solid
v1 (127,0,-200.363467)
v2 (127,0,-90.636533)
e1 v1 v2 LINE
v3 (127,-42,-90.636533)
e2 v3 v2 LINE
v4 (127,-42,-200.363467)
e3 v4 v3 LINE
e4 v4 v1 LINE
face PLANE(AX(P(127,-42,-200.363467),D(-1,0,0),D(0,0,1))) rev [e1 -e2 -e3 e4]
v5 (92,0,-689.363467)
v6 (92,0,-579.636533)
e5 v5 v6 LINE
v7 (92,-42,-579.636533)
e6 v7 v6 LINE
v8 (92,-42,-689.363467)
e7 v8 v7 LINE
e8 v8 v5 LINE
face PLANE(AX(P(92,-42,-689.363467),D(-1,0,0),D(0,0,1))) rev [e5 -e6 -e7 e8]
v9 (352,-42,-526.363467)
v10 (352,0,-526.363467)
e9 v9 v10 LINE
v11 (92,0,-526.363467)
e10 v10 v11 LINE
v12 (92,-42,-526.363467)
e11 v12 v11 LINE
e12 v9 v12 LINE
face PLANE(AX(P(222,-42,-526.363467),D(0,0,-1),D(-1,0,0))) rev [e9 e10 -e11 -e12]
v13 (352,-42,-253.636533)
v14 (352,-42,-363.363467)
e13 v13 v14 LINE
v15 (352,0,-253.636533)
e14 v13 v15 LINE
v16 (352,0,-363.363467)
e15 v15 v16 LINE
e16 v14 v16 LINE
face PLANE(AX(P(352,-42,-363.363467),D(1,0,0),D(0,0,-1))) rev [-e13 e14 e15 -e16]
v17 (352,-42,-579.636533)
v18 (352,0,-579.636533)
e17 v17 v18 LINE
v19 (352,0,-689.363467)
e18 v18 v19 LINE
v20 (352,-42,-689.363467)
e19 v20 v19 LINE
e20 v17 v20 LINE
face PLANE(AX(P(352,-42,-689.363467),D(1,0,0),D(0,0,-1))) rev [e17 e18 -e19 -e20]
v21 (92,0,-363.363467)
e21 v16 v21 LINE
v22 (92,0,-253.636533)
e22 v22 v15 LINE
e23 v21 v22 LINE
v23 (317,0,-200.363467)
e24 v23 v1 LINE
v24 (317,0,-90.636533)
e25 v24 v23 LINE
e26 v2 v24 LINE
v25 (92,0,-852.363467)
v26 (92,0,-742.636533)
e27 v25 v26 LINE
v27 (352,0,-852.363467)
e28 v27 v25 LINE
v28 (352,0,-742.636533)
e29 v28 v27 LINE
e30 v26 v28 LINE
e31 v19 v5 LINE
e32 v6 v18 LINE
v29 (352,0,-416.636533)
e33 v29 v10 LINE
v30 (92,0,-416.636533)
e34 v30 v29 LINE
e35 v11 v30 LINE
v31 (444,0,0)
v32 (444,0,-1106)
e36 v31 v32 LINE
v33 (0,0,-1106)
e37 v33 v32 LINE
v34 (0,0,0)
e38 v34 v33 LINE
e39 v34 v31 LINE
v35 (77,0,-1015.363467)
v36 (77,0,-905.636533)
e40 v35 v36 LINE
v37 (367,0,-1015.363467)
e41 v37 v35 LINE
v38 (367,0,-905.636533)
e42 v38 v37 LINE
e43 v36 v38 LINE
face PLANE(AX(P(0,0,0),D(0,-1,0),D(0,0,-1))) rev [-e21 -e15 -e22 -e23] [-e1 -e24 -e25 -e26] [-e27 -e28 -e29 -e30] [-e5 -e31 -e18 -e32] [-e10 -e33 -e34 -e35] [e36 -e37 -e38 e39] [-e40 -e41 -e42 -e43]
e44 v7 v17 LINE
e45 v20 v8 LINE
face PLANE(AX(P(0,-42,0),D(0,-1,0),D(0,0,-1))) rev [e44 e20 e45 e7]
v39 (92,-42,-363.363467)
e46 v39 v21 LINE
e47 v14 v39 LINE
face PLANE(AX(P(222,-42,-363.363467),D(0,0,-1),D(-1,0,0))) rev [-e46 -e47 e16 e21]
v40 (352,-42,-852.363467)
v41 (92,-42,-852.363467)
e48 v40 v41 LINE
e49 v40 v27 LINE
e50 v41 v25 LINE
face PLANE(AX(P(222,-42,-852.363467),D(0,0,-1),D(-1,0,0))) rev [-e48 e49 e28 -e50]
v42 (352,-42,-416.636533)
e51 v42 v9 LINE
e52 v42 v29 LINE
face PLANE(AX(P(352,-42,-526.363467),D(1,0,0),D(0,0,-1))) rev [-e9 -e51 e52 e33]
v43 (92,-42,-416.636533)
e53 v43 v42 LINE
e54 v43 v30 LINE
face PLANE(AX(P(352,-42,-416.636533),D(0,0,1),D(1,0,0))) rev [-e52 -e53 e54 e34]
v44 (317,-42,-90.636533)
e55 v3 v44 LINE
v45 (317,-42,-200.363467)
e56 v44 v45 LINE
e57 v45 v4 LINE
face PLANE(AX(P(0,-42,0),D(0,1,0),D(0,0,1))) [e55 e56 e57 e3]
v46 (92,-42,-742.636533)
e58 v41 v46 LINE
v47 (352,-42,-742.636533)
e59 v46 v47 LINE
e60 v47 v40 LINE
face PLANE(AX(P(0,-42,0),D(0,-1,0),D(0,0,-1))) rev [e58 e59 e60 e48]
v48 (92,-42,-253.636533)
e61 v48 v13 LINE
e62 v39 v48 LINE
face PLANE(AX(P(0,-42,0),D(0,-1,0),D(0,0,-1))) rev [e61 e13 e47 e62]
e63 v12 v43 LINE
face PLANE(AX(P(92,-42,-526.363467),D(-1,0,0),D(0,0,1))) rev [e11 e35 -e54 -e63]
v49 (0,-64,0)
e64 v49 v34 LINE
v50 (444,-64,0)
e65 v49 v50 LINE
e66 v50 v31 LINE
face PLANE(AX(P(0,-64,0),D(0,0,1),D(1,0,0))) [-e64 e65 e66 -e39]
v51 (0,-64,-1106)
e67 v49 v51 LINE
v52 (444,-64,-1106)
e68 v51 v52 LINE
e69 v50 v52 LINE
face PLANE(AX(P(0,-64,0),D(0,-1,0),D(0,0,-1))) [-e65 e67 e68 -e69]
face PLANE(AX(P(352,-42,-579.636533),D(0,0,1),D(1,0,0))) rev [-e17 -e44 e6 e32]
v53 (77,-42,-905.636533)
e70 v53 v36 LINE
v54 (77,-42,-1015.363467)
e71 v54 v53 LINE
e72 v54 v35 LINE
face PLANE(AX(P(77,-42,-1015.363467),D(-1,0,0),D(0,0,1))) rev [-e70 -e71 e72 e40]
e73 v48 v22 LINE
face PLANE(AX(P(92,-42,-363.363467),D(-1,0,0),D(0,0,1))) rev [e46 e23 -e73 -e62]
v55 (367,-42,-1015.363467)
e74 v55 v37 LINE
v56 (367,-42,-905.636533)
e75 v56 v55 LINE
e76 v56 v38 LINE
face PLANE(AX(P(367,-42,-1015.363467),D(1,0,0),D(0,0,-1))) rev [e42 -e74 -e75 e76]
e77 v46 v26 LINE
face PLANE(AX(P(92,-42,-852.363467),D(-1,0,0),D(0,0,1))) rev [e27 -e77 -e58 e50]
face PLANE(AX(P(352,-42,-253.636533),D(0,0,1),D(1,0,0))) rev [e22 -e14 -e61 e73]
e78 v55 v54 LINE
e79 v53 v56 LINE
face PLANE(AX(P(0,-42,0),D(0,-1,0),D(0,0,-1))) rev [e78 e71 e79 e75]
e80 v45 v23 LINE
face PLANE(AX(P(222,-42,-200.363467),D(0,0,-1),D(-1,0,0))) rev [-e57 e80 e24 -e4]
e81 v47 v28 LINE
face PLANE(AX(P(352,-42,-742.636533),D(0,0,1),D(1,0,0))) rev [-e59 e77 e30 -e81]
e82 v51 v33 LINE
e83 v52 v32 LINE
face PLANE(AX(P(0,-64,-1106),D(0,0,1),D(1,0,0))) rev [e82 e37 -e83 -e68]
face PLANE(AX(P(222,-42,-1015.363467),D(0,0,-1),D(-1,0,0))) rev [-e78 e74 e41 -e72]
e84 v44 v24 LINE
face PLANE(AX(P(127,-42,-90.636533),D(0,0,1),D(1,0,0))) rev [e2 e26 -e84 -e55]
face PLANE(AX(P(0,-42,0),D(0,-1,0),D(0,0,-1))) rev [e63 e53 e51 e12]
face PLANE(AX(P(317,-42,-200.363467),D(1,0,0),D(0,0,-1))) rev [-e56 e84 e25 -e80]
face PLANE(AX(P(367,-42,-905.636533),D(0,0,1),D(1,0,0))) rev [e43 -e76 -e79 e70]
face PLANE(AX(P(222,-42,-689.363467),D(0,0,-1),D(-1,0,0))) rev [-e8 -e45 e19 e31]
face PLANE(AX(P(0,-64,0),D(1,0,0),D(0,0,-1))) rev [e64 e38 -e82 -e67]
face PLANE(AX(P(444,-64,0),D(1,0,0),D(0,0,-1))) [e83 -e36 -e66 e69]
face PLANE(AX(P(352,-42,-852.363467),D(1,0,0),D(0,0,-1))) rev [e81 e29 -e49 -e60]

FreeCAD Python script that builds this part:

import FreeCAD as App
import Part
import Sketcher

V = App.Vector
Q = App.Units.Quantity


def add_polygon(sketch, points):
    """Adds a closed chain of lines whose ends are joined by coincident constraints."""
    first, n = sketch.GeometryCount, len(points)
    for a, b in zip(points, points[1:] + points[:1]):
        sketch.addGeometry(Part.LineSegment(App.Vector(*a, 0), App.Vector(*b, 0)), False)
    for i in range(n):
        sketch.addConstraint(Sketcher.Constraint("Coincident", first + i, 2, first + (i + 1) % n, 1))

doc = App.newDocument("Part")
body = doc.addObject("PartDesign::Body", "Body")

# Sketch on XZ plane
sketch1 = body.newObject("Sketcher::SketchObject", "Sketch")
sketch1.AttachmentSupport = (doc.getObject("XZ_Plane"), [""])
sketch1.MapMode = "FlatFace"
add_polygon(sketch1, [(0, -1106), (0, 0), (444, 0), (444, -1106)])  # lines 0-3
sketch1.addConstraint([
    Sketcher.Constraint("Vertical", 0),
    Sketcher.Constraint("Horizontal", 1),
    Sketcher.Constraint("Vertical", 2),
    Sketcher.Constraint("Horizontal", 3),
    Sketcher.Constraint("Coincident", 0, 2, -1, 1),
    Sketcher.Constraint("DistanceX", 1, 1, 1, 2, Q("444 mm")),
    Sketcher.Constraint("DistanceY", 0, 1, 0, 2, Q("1106 mm")),
])
pad1 = body.newObject("PartDesign::Pad", "Pad")
pad1.Profile = sketch1
pad1.Length = 64

# Sketch on XZ plane
sketch2 = body.newObject("Sketcher::SketchObject", "Sketch001")
sketch2.AttachmentSupport = (doc.getObject("XZ_Plane"), [""])
sketch2.MapMode = "FlatFace"
add_polygon(sketch2, [(77, -1015.363467), (77, -905.636533), (367, -905.636533), (367, -1015.363467)])  # lines 0-3
add_polygon(sketch2, [(92, -852.363467), (92, -742.636533), (352, -742.636533), (352, -852.363467)])  # lines 4-7
add_polygon(sketch2, [(92, -689.363467), (92, -579.636533), (352, -579.636533), (352, -689.363467)])  # lines 8-11
add_polygon(sketch2, [(92, -526.363467), (92, -416.636533), (352, -416.636533), (352, -526.363467)])  # lines 12-15
add_polygon(sketch2, [(92, -363.363467), (92, -253.636533), (352, -253.636533), (352, -363.363467)])  # lines 16-19
add_polygon(sketch2, [(127, -200.363467), (127, -90.636533), (317, -90.636533), (317, -200.363467)])  # lines 20-23
sketch2.addConstraint([
    Sketcher.Constraint("Vertical", 0),
    Sketcher.Constraint("Horizontal", 1),
    Sketcher.Constraint("Vertical", 2),
    Sketcher.Constraint("Horizontal", 3),
    Sketcher.Constraint("Vertical", 4),
    Sketcher.Constraint("Horizontal", 5),
    Sketcher.Constraint("Vertical", 6),
    Sketcher.Constraint("Horizontal", 7),
    Sketcher.Constraint("Vertical", 8),
    Sketcher.Constraint("Horizontal", 9),
    Sketcher.Constraint("Vertical", 10),
    Sketcher.Constraint("Horizontal", 11),
    Sketcher.Constraint("Vertical", 12),
    Sketcher.Constraint("Horizontal", 13),
    Sketcher.Constraint("Vertical", 14),
    Sketcher.Constraint("Horizontal", 15),
    Sketcher.Constraint("Vertical", 16),
    Sketcher.Constraint("Horizontal", 17),
    Sketcher.Constraint("Vertical", 18),
    Sketcher.Constraint("Horizontal", 19),
    Sketcher.Constraint("Vertical", 20),
    Sketcher.Constraint("Horizontal", 21),
    Sketcher.Constraint("Vertical", 22),
    Sketcher.Constraint("Horizontal", 23),
    Sketcher.Constraint("Vertical", 7, 2, 8, 2),
    Sketcher.Constraint("Vertical", 6, 2, 9, 2),
    Sketcher.Constraint("Vertical", 11, 2, 12, 2),
    Sketcher.Constraint("Vertical", 10, 2, 13, 2),
    Sketcher.Constraint("Vertical", 15, 2, 16, 2),
    Sketcher.Constraint("Vertical", 14, 2, 17, 2),
    Sketcher.Constraint("Equal", 2, 4),
    Sketcher.Constraint("Equal", 6, 8),
    Sketcher.Constraint("Equal", 10, 12),
    Sketcher.Constraint("Equal", 14, 16),
    Sketcher.Constraint("Equal", 18, 20),
    Sketcher.Constraint("DistanceX", 1, 1, 1, 2, Q("290 mm")),
    Sketcher.Constraint("DistanceX", 5, 1, 5, 2, Q("260 mm")),
    Sketcher.Constraint("DistanceX", 21, 1, 21, 2, Q("190 mm")),
    Sketcher.Constraint("DistanceX", -1, 1, 0, 2, Q("77 mm")),
    Sketcher.Constraint("DistanceX", -1, 1, 4, 2, Q("92 mm")),
    Sketcher.Constraint("DistanceX", -1, 1, 20, 2, Q("127 mm")),
    Sketcher.Constraint("DistanceY", 0, 2, 4, 2, Q("163 mm")),
    Sketcher.Constraint("DistanceY", 4, 2, 8, 2, Q("163 mm")),
    Sketcher.Constraint("DistanceY", 8, 2, 12, 2, Q("163 mm")),
    Sketcher.Constraint("DistanceY", 12, 2, 16, 2, Q("163 mm")),
    Sketcher.Constraint("DistanceY", 16, 2, 20, 2, Q("163 mm")),
    Sketcher.Constraint("DistanceY", 0, 1, 0, 2, Q("109.726934 mm")),
    Sketcher.Constraint("DistanceY", 0, 2, -1, 1, Q("905.636533 mm")),
])
pocket1 = body.newObject("PartDesign::Pocket", "Pocket")
pocket1.Profile = sketch2
pocket1.Length = 42
pocket1.Reversed = True

doc.recompute()
